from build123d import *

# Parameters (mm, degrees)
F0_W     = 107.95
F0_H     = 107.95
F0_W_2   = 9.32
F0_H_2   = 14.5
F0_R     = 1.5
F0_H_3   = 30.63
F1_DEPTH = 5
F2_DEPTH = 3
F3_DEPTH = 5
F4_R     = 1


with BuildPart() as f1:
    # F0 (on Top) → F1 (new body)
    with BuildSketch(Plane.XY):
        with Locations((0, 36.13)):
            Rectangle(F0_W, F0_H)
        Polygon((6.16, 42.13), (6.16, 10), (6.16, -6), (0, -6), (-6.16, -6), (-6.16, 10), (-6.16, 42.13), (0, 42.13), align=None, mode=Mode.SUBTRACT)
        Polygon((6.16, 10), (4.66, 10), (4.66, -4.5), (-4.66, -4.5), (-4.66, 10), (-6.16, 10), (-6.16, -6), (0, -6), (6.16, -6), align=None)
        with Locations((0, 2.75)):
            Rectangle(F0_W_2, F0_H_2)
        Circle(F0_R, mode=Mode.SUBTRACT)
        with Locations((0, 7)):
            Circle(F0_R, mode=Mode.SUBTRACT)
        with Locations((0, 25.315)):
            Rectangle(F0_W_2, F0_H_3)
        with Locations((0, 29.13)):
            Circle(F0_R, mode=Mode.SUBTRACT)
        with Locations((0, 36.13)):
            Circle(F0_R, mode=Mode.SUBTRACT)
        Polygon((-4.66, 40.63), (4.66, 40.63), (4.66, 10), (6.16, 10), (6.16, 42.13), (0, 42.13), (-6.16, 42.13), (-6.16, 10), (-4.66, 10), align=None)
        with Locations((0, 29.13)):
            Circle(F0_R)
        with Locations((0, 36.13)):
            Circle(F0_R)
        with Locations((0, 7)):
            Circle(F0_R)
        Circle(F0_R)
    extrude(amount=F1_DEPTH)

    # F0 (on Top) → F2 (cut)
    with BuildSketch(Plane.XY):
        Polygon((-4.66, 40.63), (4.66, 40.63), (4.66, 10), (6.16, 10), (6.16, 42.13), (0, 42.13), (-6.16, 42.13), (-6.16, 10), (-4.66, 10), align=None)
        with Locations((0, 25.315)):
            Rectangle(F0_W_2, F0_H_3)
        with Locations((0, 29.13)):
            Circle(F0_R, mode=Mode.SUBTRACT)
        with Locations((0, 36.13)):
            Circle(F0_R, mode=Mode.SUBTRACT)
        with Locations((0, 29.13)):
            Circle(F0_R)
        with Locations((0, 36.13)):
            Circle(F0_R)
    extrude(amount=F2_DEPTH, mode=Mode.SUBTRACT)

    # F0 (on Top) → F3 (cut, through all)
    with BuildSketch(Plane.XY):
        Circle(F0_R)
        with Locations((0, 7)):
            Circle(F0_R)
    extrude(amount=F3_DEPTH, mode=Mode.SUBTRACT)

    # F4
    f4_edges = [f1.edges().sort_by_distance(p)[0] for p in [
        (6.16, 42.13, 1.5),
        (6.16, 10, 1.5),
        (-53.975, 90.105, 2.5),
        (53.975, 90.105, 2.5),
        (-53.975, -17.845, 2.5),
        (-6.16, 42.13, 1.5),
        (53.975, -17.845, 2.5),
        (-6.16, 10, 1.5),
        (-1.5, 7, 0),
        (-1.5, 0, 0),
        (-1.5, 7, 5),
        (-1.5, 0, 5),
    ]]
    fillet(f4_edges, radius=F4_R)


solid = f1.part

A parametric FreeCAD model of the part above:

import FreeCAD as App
import Part
import Sketcher
Q = App.Units.Quantity


def edges_at(feature, points):
    """Names of the edges that pass closest to the given points."""
    edges = feature.Shape.Edges
    near = lambda p: min(range(len(edges)), key=lambda i: edges[i].distToShape(Part.Vertex(*p))[0])
    return sorted({f"Edge{near(p) + 1}" for p in points})


def add_polygon(sketch, points):
    """Adds a closed chain of lines whose ends are joined by coincident constraints."""
    first, n = sketch.GeometryCount, len(points)
    for a, b in zip(points, points[1:] + points[:1]):
        sketch.addGeometry(Part.LineSegment(App.Vector(*a, 0), App.Vector(*b, 0)), False)
    for i in range(n):
        sketch.addConstraint(Sketcher.Constraint("Coincident", first + i, 2, first + (i + 1) % n, 1))

doc = App.newDocument("Part")
body = doc.addObject("PartDesign::Body", "Body")

# Sketch on XY plane
sketch1 = body.newObject("Sketcher::SketchObject", "Sketch")
sketch1.AttachmentSupport = (doc.getObject("XY_Plane"), [""])
sketch1.MapMode = "FlatFace"
add_polygon(sketch1, [(-54, 90), (-54, -18), (54, -18), (54, 90)])  # lines 0-3
sketch1.addConstraint([
    Sketcher.Constraint("Vertical", 0),
    Sketcher.Constraint("Horizontal", 1),
    Sketcher.Constraint("Vertical", 2),
    Sketcher.Constraint("Horizontal", 3),
    Sketcher.Constraint("Equal", 3, 0),
    Sketcher.Constraint("DistanceX", 1, 1, 1, 2, Q("107.95 mm")),
    Sketcher.Constraint("DistanceX", 0, 2, -1, 1, Q("53.975 mm")),
    Sketcher.Constraint("DistanceY", 0, 2, -1, 1, Q("17.845 mm")),
])
pad1 = body.newObject("PartDesign::Pad", "Pad")
pad1.Profile = sketch1
pad1.Length = 5

# Sketch on XY plane
sketch2 = body.newObject("Sketcher::SketchObject", "Sketch001")
sketch2.AttachmentSupport = (doc.getObject("XY_Plane"), [""])
sketch2.MapMode = "FlatFace"
add_polygon(sketch2, [(6, 10), (6, 42), (-6, 42), (-6, 10)])  # lines 0-3
sketch2.addConstraint([
    Sketcher.Constraint("Vertical", 0),
    Sketcher.Constraint("Horizontal", 1),
    Sketcher.Constraint("Vertical", 2),
    Sketcher.Constraint("Horizontal", 3),
    Sketcher.Constraint("DistanceY", -1, 1, 2, 2, Q("10 mm")),
    Sketcher.Constraint("DistanceX", 1, 2, 1, 1, Q("12.32 mm")),
    Sketcher.Constraint("DistanceY", 0, 1, 0, 2, Q("32.13 mm")),
    Sketcher.Constraint("DistanceX", -1, 1, 0, 2, Q("6.16 mm")),
])
pocket1 = body.newObject("PartDesign::Pocket", "Pocket")
pocket1.Profile = sketch2
pocket1.Length = 3
pocket1.Reversed = True

# Sketch on XY plane
sketch3 = body.newObject("Sketcher::SketchObject", "Sketch002")
sketch3.AttachmentSupport = (doc.getObject("XY_Plane"), [""])
sketch3.MapMode = "FlatFace"
sketch3.addGeometry([
    Part.Circle(App.Vector(0, 0, 0), App.Vector(0, 0, 1), 1.5),
    Part.Circle(App.Vector(0, 7, 0), App.Vector(0, 0, 1), 1.5),
], False)
sketch3.addConstraint([
    Sketcher.Constraint("Coincident", 0, 3, -1, 1),
    Sketcher.Constraint("Equal", 0, 1),
    Sketcher.Constraint("PointOnObject", 1, 3, -2),
    Sketcher.Constraint("Diameter", 0, Q("3 mm")),
    Sketcher.Constraint("DistanceY", -1, 1, 1, 3, Q("7 mm")),
])
pocket2 = body.newObject("PartDesign::Pocket", "Pocket001")
pocket2.Profile = sketch3
pocket2.Type = "ThroughAll"
pocket2.Reversed = True
doc.recompute()

fillet = body.newObject("PartDesign::Fillet", "Fillet")
fillet.Base = (pocket2, edges_at(pocket2, [
    (6.16, 42.13, 1.5),
    (6.16, 10, 1.5),
    (-53.975, 90.105, 2.5),
    (53.975, 90.105, 2.5),
    (-53.975, -17.845, 2.5),
    (-6.16, 42.13, 1.5),
    (53.975, -17.845, 2.5),
    (-6.16, 10, 1.5),
    (-1.5, 7, 0),
    (-1.5, 0, 0),
    (-1.5, 7, 5),
    (-1.5, 0, 5),
]))
fillet.Radius = 1

doc.recompute()
